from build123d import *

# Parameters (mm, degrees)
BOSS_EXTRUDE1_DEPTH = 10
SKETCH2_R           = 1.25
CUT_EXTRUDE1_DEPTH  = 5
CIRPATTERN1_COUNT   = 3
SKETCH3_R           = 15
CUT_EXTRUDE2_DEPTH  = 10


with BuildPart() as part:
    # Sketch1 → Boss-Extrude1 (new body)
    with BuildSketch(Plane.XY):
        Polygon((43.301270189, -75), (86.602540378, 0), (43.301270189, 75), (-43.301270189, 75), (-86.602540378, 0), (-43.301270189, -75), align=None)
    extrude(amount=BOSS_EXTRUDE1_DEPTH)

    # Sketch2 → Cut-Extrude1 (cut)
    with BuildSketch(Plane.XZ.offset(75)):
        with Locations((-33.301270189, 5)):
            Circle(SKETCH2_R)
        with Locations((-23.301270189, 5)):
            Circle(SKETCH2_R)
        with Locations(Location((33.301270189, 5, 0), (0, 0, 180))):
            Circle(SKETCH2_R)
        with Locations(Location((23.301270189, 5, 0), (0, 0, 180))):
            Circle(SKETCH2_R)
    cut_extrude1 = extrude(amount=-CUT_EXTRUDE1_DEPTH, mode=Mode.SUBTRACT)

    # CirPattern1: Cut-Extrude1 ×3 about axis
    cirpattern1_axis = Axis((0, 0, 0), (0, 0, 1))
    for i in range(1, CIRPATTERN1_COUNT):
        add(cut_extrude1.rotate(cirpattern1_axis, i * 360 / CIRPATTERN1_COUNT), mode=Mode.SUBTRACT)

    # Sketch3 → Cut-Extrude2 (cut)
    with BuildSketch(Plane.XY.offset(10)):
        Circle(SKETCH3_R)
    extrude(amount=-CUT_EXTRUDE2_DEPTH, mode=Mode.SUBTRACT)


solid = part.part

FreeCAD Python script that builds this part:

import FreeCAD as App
import Part
import Sketcher
from FreeCAD import Vector
Q = App.Units.Quantity

doc = App.newDocument("Part")
params = doc.addObject("Spreadsheet::Sheet", "Params")
for row, (alias, value) in enumerate([
    ("pad1_length", "10 mm"),
    ("sketch2_diameter", "2.5 mm"),
    ("pocket1_length", "5 mm"),
    ("sketch3_diameter", "30 mm"),
    ("pocket2_length", "10 mm"),
], start=1):
    params.set(f"A{row}", alias)
    params.set(f"B{row}", "=" + value)
    params.setAlias(f"B{row}", alias)

body = doc.addObject("PartDesign::Body", "Body")

sketch1 = doc.addObject("Sketcher::SketchObject", "Sketch")
body.addObject(sketch1)
sketch1.AttachmentSupport = (doc.XY_Plane, [""])
sketch1.MapMode = "FlatFace"
sketch1.addGeometry(Part.LineSegment(Vector(43, -75, 0), Vector(87, 0, 0)), False)
sketch1.addGeometry(Part.LineSegment(Vector(87, 0, 0), Vector(43, 75, 0)), False)
sketch1.addGeometry(Part.LineSegment(Vector(43, 75, 0), Vector(-43, 75, 0)), False)
sketch1.addGeometry(Part.LineSegment(Vector(-43, 75, 0), Vector(-87, 0, 0)), False)
sketch1.addGeometry(Part.LineSegment(Vector(-87, 0, 0), Vector(-43, -75, 0)), False)
sketch1.addGeometry(Part.LineSegment(Vector(-43, -75, 0), Vector(43, -75, 0)), False)
sketch1.addConstraint(Sketcher.Constraint("Coincident", 0, 2, 1, 1))
sketch1.addConstraint(Sketcher.Constraint("Coincident", 1, 2, 2, 1))
sketch1.addConstraint(Sketcher.Constraint("Coincident", 2, 2, 3, 1))
sketch1.addConstraint(Sketcher.Constraint("Coincident", 3, 2, 4, 1))
sketch1.addConstraint(Sketcher.Constraint("Coincident", 4, 2, 5, 1))
sketch1.addConstraint(Sketcher.Constraint("Coincident", 5, 2, 0, 1))
sketch1.addConstraint(Sketcher.Constraint("Horizontal", 2))
sketch1.addConstraint(Sketcher.Constraint("Horizontal", 5))
sketch1.addConstraint(Sketcher.Constraint("Symmetric", 0, 2, 3, 2, -1, 1))
sketch1.addConstraint(Sketcher.Constraint("Symmetric", 1, 2, 4, 2, -1, 1))
sketch1.addConstraint(Sketcher.Constraint("PointOnObject", 0, 2, -1))
sketch1.addConstraint(Sketcher.Constraint("Parallel", 0, 3))
sketch1.addConstraint(Sketcher.Constraint("Vertical", 2, 2, 4, 2))
sketch1.addConstraint(Sketcher.Constraint("Angle", 0, Q("60 deg")))
sketch1.addConstraint(Sketcher.Constraint("DistanceY", -1, 1, 1, 2, Q("75 mm")))
sketch1.addConstraint(Sketcher.Constraint("DistanceX", 2, 2, 2, 1, Q("86.60254 mm")))
pad1 = doc.addObject("PartDesign::Pad", "Pad")
body.addObject(pad1)
pad1.Profile = sketch1
pad1.setExpression("Length", "Params.pad1_length")

sketch2 = doc.addObject("Sketcher::SketchObject", "Sketch001")
body.addObject(sketch2)
sketch2.AttachmentSupport = (doc.XZ_Plane, [""])
sketch2.MapMode = "FlatFace"
sketch2.AttachmentOffset = App.Placement(Vector(0, 0, 75), App.Rotation())
sketch2.addGeometry(Part.Circle(Vector(-33.3, 5, 0), Vector(0, 0, 1), 1.2), False)
sketch2.addGeometry(Part.Circle(Vector(-23.3, 5, 0), Vector(0, 0, 1), 1.2), False)
sketch2.addGeometry(Part.Circle(Vector(33.3, 5, 0), Vector(0, 0, 1), 1.2), False)
sketch2.addGeometry(Part.Circle(Vector(23.3, 5, 0), Vector(0, 0, 1), 1.2), False)
sketch2.addConstraint(Sketcher.Constraint("Equal", 0, 1))
sketch2.addConstraint(Sketcher.Constraint("Equal", 1, 2))
sketch2.addConstraint(Sketcher.Constraint("Equal", 2, 3))
sketch2.addConstraint(Sketcher.Constraint("Symmetric", 0, 3, 2, 3, -2))
sketch2.addConstraint(Sketcher.Constraint("Symmetric", 1, 3, 3, 3, -2))
sketch2.addConstraint(Sketcher.Constraint("Horizontal", 0, 3, 1, 3))
sketch2.addConstraint(Sketcher.Constraint("Diameter", 0, Q("2.5 mm")))
sketch2.addConstraint(Sketcher.Constraint("DistanceY", -1, 1, 0, 3, Q("5 mm")))
sketch2.addConstraint(Sketcher.Constraint("DistanceX", 0, 3, 1, 3, Q("10 mm")))
sketch2.addConstraint(Sketcher.Constraint("DistanceX", 0, 3, -1, 1, Q("33.30127 mm")))
sketch2.setExpression("Constraints[6]", "Params.sketch2_diameter")
pocket1 = doc.addObject("PartDesign::Pocket", "Pocket")
body.addObject(pocket1)
pocket1.Profile = sketch2
pocket1.setExpression("Length", "Params.pocket1_length")
doc.recompute()

polarpattern = doc.addObject("PartDesign::PolarPattern", "PolarPattern")
body.addObject(polarpattern)
polarpattern.Originals = [pocket1]
polarpattern.Axis = (doc.Z_Axis, [""])
polarpattern.Angle = 360
polarpattern.Occurrences = 3
body.Tip = polarpattern

sketch3 = doc.addObject("Sketcher::SketchObject", "Sketch002")
body.addObject(sketch3)
sketch3.AttachmentSupport = (doc.XY_Plane, [""])
sketch3.MapMode = "FlatFace"
sketch3.AttachmentOffset = App.Placement(Vector(0, 0, 10), App.Rotation())
sketch3.addGeometry(Part.Circle(Vector(0, 0, 0), Vector(0, 0, 1), 15), False)
sketch3.addConstraint(Sketcher.Constraint("Coincident", 0, 3, -1, 1))
sketch3.addConstraint(Sketcher.Constraint("Diameter", 0, Q("30 mm")))
sketch3.setExpression("Constraints[1]", "Params.sketch3_diameter")
pocket2 = doc.addObject("PartDesign::Pocket", "Pocket001")
body.addObject(pocket2)
pocket2.Profile = sketch3
pocket2.setExpression("Length", "Params.pocket2_length")

doc.recompute()
